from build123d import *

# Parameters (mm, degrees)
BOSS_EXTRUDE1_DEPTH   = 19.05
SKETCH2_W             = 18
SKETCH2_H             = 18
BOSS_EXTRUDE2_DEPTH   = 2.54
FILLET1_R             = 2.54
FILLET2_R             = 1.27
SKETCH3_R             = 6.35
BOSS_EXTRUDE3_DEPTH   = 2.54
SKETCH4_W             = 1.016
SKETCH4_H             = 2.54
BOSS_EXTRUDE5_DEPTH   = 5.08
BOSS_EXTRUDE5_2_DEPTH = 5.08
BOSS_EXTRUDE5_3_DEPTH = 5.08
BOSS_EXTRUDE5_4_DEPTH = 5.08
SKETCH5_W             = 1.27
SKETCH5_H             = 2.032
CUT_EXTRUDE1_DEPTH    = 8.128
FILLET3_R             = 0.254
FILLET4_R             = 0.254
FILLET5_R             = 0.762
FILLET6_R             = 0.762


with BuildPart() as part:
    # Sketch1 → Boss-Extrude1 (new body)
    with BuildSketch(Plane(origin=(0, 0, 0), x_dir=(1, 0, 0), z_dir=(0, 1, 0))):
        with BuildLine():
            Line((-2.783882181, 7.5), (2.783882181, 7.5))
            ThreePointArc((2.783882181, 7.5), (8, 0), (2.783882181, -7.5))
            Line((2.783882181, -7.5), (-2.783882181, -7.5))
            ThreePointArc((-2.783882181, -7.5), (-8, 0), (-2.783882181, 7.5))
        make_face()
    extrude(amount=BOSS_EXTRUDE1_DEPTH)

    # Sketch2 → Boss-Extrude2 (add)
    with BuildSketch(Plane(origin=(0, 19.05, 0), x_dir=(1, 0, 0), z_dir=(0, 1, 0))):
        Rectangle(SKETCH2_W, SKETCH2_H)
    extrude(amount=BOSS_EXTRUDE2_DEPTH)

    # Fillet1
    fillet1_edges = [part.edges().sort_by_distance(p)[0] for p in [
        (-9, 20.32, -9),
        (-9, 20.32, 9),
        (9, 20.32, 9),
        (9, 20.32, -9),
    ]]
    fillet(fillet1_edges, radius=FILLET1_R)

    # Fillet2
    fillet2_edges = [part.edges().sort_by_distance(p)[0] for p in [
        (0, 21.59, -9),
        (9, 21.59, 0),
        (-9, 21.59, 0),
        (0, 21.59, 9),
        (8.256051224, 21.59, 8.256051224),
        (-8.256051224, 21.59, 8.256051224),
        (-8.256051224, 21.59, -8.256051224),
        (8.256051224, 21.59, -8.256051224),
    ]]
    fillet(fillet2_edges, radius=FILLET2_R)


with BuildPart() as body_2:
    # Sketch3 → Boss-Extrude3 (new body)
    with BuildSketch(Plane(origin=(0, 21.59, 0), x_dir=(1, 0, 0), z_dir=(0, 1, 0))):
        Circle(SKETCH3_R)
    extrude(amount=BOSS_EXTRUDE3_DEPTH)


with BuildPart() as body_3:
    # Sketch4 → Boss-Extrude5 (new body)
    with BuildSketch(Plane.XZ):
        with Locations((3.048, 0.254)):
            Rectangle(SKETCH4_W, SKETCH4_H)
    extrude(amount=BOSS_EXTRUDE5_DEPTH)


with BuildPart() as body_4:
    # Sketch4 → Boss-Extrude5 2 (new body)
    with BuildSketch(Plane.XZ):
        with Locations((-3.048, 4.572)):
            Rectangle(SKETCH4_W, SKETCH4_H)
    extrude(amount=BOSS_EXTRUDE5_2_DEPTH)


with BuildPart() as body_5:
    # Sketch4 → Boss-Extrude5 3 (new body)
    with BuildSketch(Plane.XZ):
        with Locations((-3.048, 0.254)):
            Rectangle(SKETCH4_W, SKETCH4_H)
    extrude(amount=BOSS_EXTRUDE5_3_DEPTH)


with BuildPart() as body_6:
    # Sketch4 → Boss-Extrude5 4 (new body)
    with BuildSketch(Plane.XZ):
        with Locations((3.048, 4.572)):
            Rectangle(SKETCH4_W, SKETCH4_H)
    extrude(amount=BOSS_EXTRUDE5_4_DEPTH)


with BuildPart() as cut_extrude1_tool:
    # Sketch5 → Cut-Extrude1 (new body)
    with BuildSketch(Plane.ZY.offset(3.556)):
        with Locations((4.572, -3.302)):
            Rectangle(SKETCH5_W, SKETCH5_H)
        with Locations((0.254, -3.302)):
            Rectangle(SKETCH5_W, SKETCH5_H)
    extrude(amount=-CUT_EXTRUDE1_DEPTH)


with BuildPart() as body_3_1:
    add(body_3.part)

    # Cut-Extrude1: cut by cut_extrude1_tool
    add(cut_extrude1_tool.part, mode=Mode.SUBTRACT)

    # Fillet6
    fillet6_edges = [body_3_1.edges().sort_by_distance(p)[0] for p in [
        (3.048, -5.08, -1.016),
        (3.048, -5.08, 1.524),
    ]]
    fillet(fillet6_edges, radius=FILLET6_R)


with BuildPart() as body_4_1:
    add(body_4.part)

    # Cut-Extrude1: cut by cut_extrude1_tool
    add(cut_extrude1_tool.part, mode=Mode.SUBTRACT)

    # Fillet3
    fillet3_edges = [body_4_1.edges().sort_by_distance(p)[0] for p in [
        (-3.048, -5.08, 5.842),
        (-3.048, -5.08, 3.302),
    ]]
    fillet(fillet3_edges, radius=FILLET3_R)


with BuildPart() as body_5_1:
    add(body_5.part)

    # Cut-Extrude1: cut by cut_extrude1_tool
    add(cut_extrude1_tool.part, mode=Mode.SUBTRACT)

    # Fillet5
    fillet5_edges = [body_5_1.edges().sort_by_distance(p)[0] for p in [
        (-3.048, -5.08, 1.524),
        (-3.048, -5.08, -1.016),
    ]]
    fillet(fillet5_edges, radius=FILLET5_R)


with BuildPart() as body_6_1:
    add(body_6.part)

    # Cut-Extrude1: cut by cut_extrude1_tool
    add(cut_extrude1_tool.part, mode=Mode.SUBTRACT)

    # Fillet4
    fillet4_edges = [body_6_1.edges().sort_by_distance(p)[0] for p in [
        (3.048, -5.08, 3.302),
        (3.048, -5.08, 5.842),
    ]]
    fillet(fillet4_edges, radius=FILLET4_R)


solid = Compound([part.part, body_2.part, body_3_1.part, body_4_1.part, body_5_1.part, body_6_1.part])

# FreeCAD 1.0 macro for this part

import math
import FreeCAD as App
import Part
import Sketcher
from FreeCAD import Vector
Q = App.Units.Quantity


def edges_at(feature, points):
    """Names of the edges that pass closest to the given points."""
    edges = feature.Shape.Edges
    near = lambda p: min(range(len(edges)), key=lambda i: edges[i].distToShape(Part.Vertex(*p))[0])
    return sorted({f"Edge{near(p) + 1}" for p in points})

doc = App.newDocument("Part")
body = doc.addObject("PartDesign::Body", "Body")

# Sketch on XZ plane
sketch1 = body.newObject("Sketcher::SketchObject", "Sketch")
sketch1.AttachmentSupport = (doc.getObject("XZ_Plane"), [""])
sketch1.MapMode = "FlatFace"
sketch1.addGeometry([
    Part.LineSegment(Vector(3, -8, 0), Vector(-3, -8, 0)),
    Part.ArcOfCircle(Part.Circle(Vector(0, 0, 0), Vector(0, 0, 1), 8), math.radians(110), math.radians(250)),
    Part.LineSegment(Vector(-3, 8, 0), Vector(3, 8, 0)),
    Part.ArcOfCircle(Part.Circle(Vector(0, 0, 0), Vector(0, 0, 1), 8), math.radians(-70), math.radians(70)),
], False)
sketch1.addConstraint([
    Sketcher.Constraint("Coincident", 0, 2, 1, 2),
    Sketcher.Constraint("Coincident", 1, 1, 2, 1),
    Sketcher.Constraint("Coincident", 2, 2, 3, 2),
    Sketcher.Constraint("Coincident", 3, 1, 0, 1),
    Sketcher.Constraint("Horizontal", 0),
    Sketcher.Constraint("Horizontal", 2),
    Sketcher.Constraint("Coincident", 1, 3, -1, 1),
    Sketcher.Constraint("Coincident", 3, 3, -1, 1),
    Sketcher.Constraint("Equal", 1, 3),
    Sketcher.Constraint("Vertical", 0, 2, 1, 1),
    Sketcher.Constraint("Radius", 1, 8.0),
    Sketcher.Constraint("DistanceY", 0, 2, -1, 1, 7.5),
])
pad1 = body.newObject("PartDesign::Pad", "Pad")
pad1.Profile = sketch1
pad1.Length = Q("0.75 in")
pad1.Reversed = True

# Sketch on XZ plane
sketch2 = body.newObject("Sketcher::SketchObject", "Sketch001")
sketch2.AttachmentSupport = (doc.getObject("XZ_Plane"), [""])
sketch2.MapMode = "FlatFace"
sketch2.AttachmentOffset = App.Placement(Vector(0, 0, -0.75 * 25.4), App.Rotation())
sketch2.addGeometry([
    Part.LineSegment(Vector(-9, -9, 0), Vector(-9, 9, 0)),
    Part.LineSegment(Vector(-9, 9, 0), Vector(9, 9, 0)),
    Part.LineSegment(Vector(9, 9, 0), Vector(9, -9, 0)),
    Part.LineSegment(Vector(9, -9, 0), Vector(-9, -9, 0)),
], False)
sketch2.addConstraint([
    Sketcher.Constraint("Coincident", 0, 2, 1, 1),
    Sketcher.Constraint("Coincident", 1, 2, 2, 1),
    Sketcher.Constraint("Coincident", 2, 2, 3, 1),
    Sketcher.Constraint("Coincident", 3, 2, 0, 1),
    Sketcher.Constraint("Vertical", 0),
    Sketcher.Constraint("Horizontal", 1),
    Sketcher.Constraint("Vertical", 2),
    Sketcher.Constraint("Horizontal", 3),
    Sketcher.Constraint("Symmetric", 0, 2, 2, 2, -1, 1),
    Sketcher.Constraint("Equal", 3, 0),
    Sketcher.Constraint("DistanceX", 1, 1, 1, 2, 18.0),
])
pad2 = body.newObject("PartDesign::Pad", "Pad001")
pad2.Profile = sketch2
pad2.Length = Q("0.1 in")
pad2.Reversed = True
doc.recompute()

fillet = body.newObject("PartDesign::Fillet", "Fillet")
fillet.Base = (pad2, edges_at(pad2, [
    (-9, 20.32, -9),
    (-9, 20.32, 9),
    (9, 20.32, 9),
    (9, 20.32, -9),
]))
fillet.Radius = Q("0.1 in")
doc.recompute()

fillet2 = body.newObject("PartDesign::Fillet", "Fillet001")
fillet2.Base = (fillet, edges_at(fillet, [
    (0, 21.59, -9),
    (9, 21.59, 0),
    (-9, 21.59, 0),
    (0, 21.59, 9),
    (8.256, 21.59, 8.256),
    (-8.256, 21.59, 8.256),
    (-8.256, 21.59, -8.256),
    (8.256, 21.59, -8.256),
]))
fillet2.Radius = Q("0.05 in")
body2 = doc.addObject("PartDesign::Body", "Body001")

# Sketch on XZ plane
sketch3 = body2.newObject("Sketcher::SketchObject", "Sketch002")
sketch3.AttachmentSupport = (doc.getObject("XZ_Plane001"), [""])
sketch3.MapMode = "FlatFace"
sketch3.AttachmentOffset = App.Placement(Vector(0, 0, -0.85 * 25.4), App.Rotation())
sketch3.addGeometry(Part.Circle(Vector(0, 0, 0), Vector(0, 0, 1), 6), False)
sketch3.addConstraint([
    Sketcher.Constraint("Coincident", 0, 3, -1, 1),
    Sketcher.Constraint("Diameter", 0, Q("0.5 in")),
])
pad3 = body2.newObject("PartDesign::Pad", "Pad002")
pad3.Profile = sketch3
pad3.Length = Q("0.1 in")
pad3.Reversed = True
body3 = doc.addObject("PartDesign::Body", "Body002")

# Sketch on XZ plane
sketch4 = body3.newObject("Sketcher::SketchObject", "Sketch003")
sketch4.AttachmentSupport = (doc.getObject("XZ_Plane002"), [""])
sketch4.MapMode = "FlatFace"
sketch4.addGeometry([
    Part.LineSegment(Vector(2.5, 1.5, 0), Vector(2.5, -1, 0)),
    Part.LineSegment(Vector(2.5, -1, 0), Vector(3.6, -1, 0)),
    Part.LineSegment(Vector(3.6, -1, 0), Vector(3.6, 1.5, 0)),
    Part.LineSegment(Vector(3.6, 1.5, 0), Vector(2.5, 1.5, 0)),
], False)
sketch4.addConstraint([
    Sketcher.Constraint("Coincident", 0, 2, 1, 1),
    Sketcher.Constraint("Coincident", 1, 2, 2, 1),
    Sketcher.Constraint("Coincident", 2, 2, 3, 1),
    Sketcher.Constraint("Coincident", 3, 2, 0, 1),
    Sketcher.Constraint("Vertical", 0),
    Sketcher.Constraint("Horizontal", 1),
    Sketcher.Constraint("Vertical", 2),
    Sketcher.Constraint("Horizontal", 3),
    Sketcher.Constraint("DistanceY", 0, 2, 0, 1, Q("0.1 in")),
    Sketcher.Constraint("DistanceX", 1, 1, 1, 2, Q("0.04 in")),
    Sketcher.Constraint("DistanceX", -1, 1, 0, 2, Q("0.1 in")),
    Sketcher.Constraint("DistanceY", 0, 2, -1, 1, Q("0.04 in")),
])
pad4 = body3.newObject("PartDesign::Pad", "Pad003")
pad4.Profile = sketch4
pad4.Length = Q("0.2 in")
body4 = doc.addObject("PartDesign::Body", "Body003")

# Sketch on XZ plane
sketch5 = body4.newObject("Sketcher::SketchObject", "Sketch004")
sketch5.AttachmentSupport = (doc.getObject("XZ_Plane003"), [""])
sketch5.MapMode = "FlatFace"
sketch5.addGeometry([
    Part.LineSegment(Vector(-3.6, 5.8, 0), Vector(-3.6, 3.3, 0)),
    Part.LineSegment(Vector(-3.6, 3.3, 0), Vector(-2.5, 3.3, 0)),
    Part.LineSegment(Vector(-2.5, 3.3, 0), Vector(-2.5, 5.8, 0)),
    Part.LineSegment(Vector(-2.5, 5.8, 0), Vector(-3.6, 5.8, 0)),
], False)
sketch5.addConstraint([
    Sketcher.Constraint("Coincident", 0, 2, 1, 1),
    Sketcher.Constraint("Coincident", 1, 2, 2, 1),
    Sketcher.Constraint("Coincident", 2, 2, 3, 1),
    Sketcher.Constraint("Coincident", 3, 2, 0, 1),
    Sketcher.Constraint("Vertical", 0),
    Sketcher.Constraint("Horizontal", 1),
    Sketcher.Constraint("Vertical", 2),
    Sketcher.Constraint("Horizontal", 3),
    Sketcher.Constraint("DistanceY", 0, 2, 0, 1, Q("0.1 in")),
    Sketcher.Constraint("DistanceX", 1, 1, 1, 2, Q("0.04 in")),
    Sketcher.Constraint("DistanceX", 1, 2, -1, 1, Q("0.1 in")),
    Sketcher.Constraint("DistanceY", -1, 1, 0, 2, Q("0.13 in")),
])
pad5 = body4.newObject("PartDesign::Pad", "Pad004")
pad5.Profile = sketch5
pad5.Length = Q("0.2 in")
body5 = doc.addObject("PartDesign::Body", "Body004")

# Sketch on XZ plane
sketch6 = body5.newObject("Sketcher::SketchObject", "Sketch005")
sketch6.AttachmentSupport = (doc.getObject("XZ_Plane004"), [""])
sketch6.MapMode = "FlatFace"
sketch6.addGeometry([
    Part.LineSegment(Vector(-3.6, 1.5, 0), Vector(-3.6, -1, 0)),
    Part.LineSegment(Vector(-3.6, -1, 0), Vector(-2.5, -1, 0)),
    Part.LineSegment(Vector(-2.5, -1, 0), Vector(-2.5, 1.5, 0)),
    Part.LineSegment(Vector(-2.5, 1.5, 0), Vector(-3.6, 1.5, 0)),
], False)
sketch6.addConstraint([
    Sketcher.Constraint("Coincident", 0, 2, 1, 1),
    Sketcher.Constraint("Coincident", 1, 2, 2, 1),
    Sketcher.Constraint("Coincident", 2, 2, 3, 1),
    Sketcher.Constraint("Coincident", 3, 2, 0, 1),
    Sketcher.Constraint("Vertical", 0),
    Sketcher.Constraint("Horizontal", 1),
    Sketcher.Constraint("Vertical", 2),
    Sketcher.Constraint("Horizontal", 3),
    Sketcher.Constraint("DistanceY", 0, 2, 0, 1, Q("0.1 in")),
    Sketcher.Constraint("DistanceX", 1, 1, 1, 2, Q("0.04 in")),
    Sketcher.Constraint("DistanceX", 1, 2, -1, 1, Q("0.1 in")),
    Sketcher.Constraint("DistanceY", 0, 2, -1, 1, Q("0.04 in")),
])
pad6 = body5.newObject("PartDesign::Pad", "Pad005")
pad6.Profile = sketch6
pad6.Length = Q("0.2 in")
body6 = doc.addObject("PartDesign::Body", "Body005")

# Sketch on XZ plane
sketch7 = body6.newObject("Sketcher::SketchObject", "Sketch006")
sketch7.AttachmentSupport = (doc.getObject("XZ_Plane005"), [""])
sketch7.MapMode = "FlatFace"
sketch7.addGeometry([
    Part.LineSegment(Vector(2.5, 5.8, 0), Vector(2.5, 3.3, 0)),
    Part.LineSegment(Vector(2.5, 3.3, 0), Vector(3.6, 3.3, 0)),
    Part.LineSegment(Vector(3.6, 3.3, 0), Vector(3.6, 5.8, 0)),
    Part.LineSegment(Vector(3.6, 5.8, 0), Vector(2.5, 5.8, 0)),
], False)
sketch7.addConstraint([
    Sketcher.Constraint("Coincident", 0, 2, 1, 1),
    Sketcher.Constraint("Coincident", 1, 2, 2, 1),
    Sketcher.Constraint("Coincident", 2, 2, 3, 1),
    Sketcher.Constraint("Coincident", 3, 2, 0, 1),
    Sketcher.Constraint("Vertical", 0),
    Sketcher.Constraint("Horizontal", 1),
    Sketcher.Constraint("Vertical", 2),
    Sketcher.Constraint("Horizontal", 3),
    Sketcher.Constraint("DistanceY", 0, 2, 0, 1, Q("0.1 in")),
    Sketcher.Constraint("DistanceX", 1, 1, 1, 2, Q("0.04 in")),
    Sketcher.Constraint("DistanceX", -1, 1, 0, 2, Q("0.1 in")),
    Sketcher.Constraint("DistanceY", -1, 1, 0, 2, Q("0.13 in")),
])
pad7 = body6.newObject("PartDesign::Pad", "Pad006")
pad7.Profile = sketch7
pad7.Length = Q("0.2 in")
body7 = doc.addObject("PartDesign::Body", "Body006")
body7.AllowCompound = True

# Sketch on YZ plane
sketch8 = body7.newObject("Sketcher::SketchObject", "Sketch007")
sketch8.AttachmentSupport = (doc.getObject("YZ_Plane006"), [""])
sketch8.MapMode = "FlatFace"
sketch8.AttachmentOffset = App.Placement(Vector(0, 0, -0.14 * 25.4), App.Rotation())
sketch8.addGeometry([
    Part.LineSegment(Vector(-2.3, 3.9, 0), Vector(-4.3, 3.9, 0)),  # 0
    Part.LineSegment(Vector(-4.3, 3.9, 0), Vector(-4.3, 5.2, 0)),  # 1
    Part.LineSegment(Vector(-4.3, 5.2, 0), Vector(-2.3, 5.2, 0)),  # 2
    Part.LineSegment(Vector(-2.3, 5.2, 0), Vector(-2.3, 3.9, 0)),  # 3
    Part.LineSegment(Vector(-2.3, -0.4, 0), Vector(-4.3, -0.4, 0)),  # 4
    Part.LineSegment(Vector(-4.3, -0.4, 0), Vector(-4.3, 0.9, 0)),  # 5
    Part.LineSegment(Vector(-4.3, 0.9, 0), Vector(-2.3, 0.9, 0)),  # 6
    Part.LineSegment(Vector(-2.3, 0.9, 0), Vector(-2.3, -0.4, 0)),  # 7
], False)
sketch8.addConstraint([
    Sketcher.Constraint("Coincident", 0, 2, 1, 1),
    Sketcher.Constraint("Coincident", 1, 2, 2, 1),
    Sketcher.Constraint("Coincident", 2, 2, 3, 1),
    Sketcher.Constraint("Coincident", 3, 2, 0, 1),
    Sketcher.Constraint("Coincident", 4, 2, 5, 1),
    Sketcher.Constraint("Coincident", 5, 2, 6, 1),
    Sketcher.Constraint("Coincident", 6, 2, 7, 1),
    Sketcher.Constraint("Coincident", 7, 2, 4, 1),
    Sketcher.Constraint("Horizontal", 0),
    Sketcher.Constraint("Vertical", 1),
    Sketcher.Constraint("Horizontal", 2),
    Sketcher.Constraint("Vertical", 3),
    Sketcher.Constraint("Horizontal", 4),
    Sketcher.Constraint("Vertical", 5),
    Sketcher.Constraint("Horizontal", 6),
    Sketcher.Constraint("Vertical", 7),
    Sketcher.Constraint("Vertical", 1, 2, 4, 2),
    Sketcher.Constraint("Vertical", 3, 2, 6, 2),
    Sketcher.Constraint("Equal", 3, 5),
    Sketcher.Constraint("DistanceX", 0, 2, 0, 1, Q("0.08 in")),
    Sketcher.Constraint("DistanceY", 1, 1, 1, 2, Q("0.05 in")),
    Sketcher.Constraint("DistanceX", 0, 2, -1, 1, Q("0.17 in")),
    Sketcher.Constraint("DistanceY", 4, 2, 0, 2, Q("0.17 in")),
    Sketcher.Constraint("DistanceY", -1, 1, 0, 2, Q("0.155 in")),
])
pad8 = body7.newObject("PartDesign::Pad", "Pad007")
pad8.Profile = sketch8
pad8.Length = Q("0.32 in")
doc.recompute()

body8 = doc.addObject("PartDesign::Body", "Body007")
body8.BaseFeature = body7
boolean = body3.newObject("PartDesign::Boolean", "Boolean")
boolean.Type = "Cut"
boolean.addObjects([body8])
doc.recompute()

fillet3 = body3.newObject("PartDesign::Fillet", "Fillet002")
fillet3.Base = (boolean, edges_at(boolean, [(3.048, -5.08, -1.016), (3.048, -5.08, 1.524)]))
fillet3.Radius = Q("0.03 in")
doc.recompute()

body9 = doc.addObject("PartDesign::Body", "Body008")
body9.BaseFeature = body7
boolean2 = body4.newObject("PartDesign::Boolean", "Boolean001")
boolean2.Type = "Cut"
boolean2.addObjects([body9])
doc.recompute()

fillet4 = body4.newObject("PartDesign::Fillet", "Fillet003")
fillet4.Base = (boolean2, edges_at(boolean2, [(-3.048, -5.08, 5.842), (-3.048, -5.08, 3.302)]))
fillet4.Radius = Q("0.01 in")
doc.recompute()

body10 = doc.addObject("PartDesign::Body", "Body009")
body10.BaseFeature = body7
boolean3 = body5.newObject("PartDesign::Boolean", "Boolean002")
boolean3.Type = "Cut"
boolean3.addObjects([body10])
doc.recompute()

fillet5 = body5.newObject("PartDesign::Fillet", "Fillet004")
fillet5.Base = (boolean3, edges_at(boolean3, [(-3.048, -5.08, 1.524), (-3.048, -5.08, -1.016)]))
fillet5.Radius = Q("0.03 in")
doc.recompute()

boolean4 = body6.newObject("PartDesign::Boolean", "Boolean003")
boolean4.Type = "Cut"
boolean4.addObjects([body7])
doc.recompute()

fillet6 = body6.newObject("PartDesign::Fillet", "Fillet005")
fillet6.Base = (boolean4, edges_at(boolean4, [(3.048, -5.08, 3.302), (3.048, -5.08, 5.842)]))
fillet6.Radius = Q("0.01 in")

doc.recompute()
